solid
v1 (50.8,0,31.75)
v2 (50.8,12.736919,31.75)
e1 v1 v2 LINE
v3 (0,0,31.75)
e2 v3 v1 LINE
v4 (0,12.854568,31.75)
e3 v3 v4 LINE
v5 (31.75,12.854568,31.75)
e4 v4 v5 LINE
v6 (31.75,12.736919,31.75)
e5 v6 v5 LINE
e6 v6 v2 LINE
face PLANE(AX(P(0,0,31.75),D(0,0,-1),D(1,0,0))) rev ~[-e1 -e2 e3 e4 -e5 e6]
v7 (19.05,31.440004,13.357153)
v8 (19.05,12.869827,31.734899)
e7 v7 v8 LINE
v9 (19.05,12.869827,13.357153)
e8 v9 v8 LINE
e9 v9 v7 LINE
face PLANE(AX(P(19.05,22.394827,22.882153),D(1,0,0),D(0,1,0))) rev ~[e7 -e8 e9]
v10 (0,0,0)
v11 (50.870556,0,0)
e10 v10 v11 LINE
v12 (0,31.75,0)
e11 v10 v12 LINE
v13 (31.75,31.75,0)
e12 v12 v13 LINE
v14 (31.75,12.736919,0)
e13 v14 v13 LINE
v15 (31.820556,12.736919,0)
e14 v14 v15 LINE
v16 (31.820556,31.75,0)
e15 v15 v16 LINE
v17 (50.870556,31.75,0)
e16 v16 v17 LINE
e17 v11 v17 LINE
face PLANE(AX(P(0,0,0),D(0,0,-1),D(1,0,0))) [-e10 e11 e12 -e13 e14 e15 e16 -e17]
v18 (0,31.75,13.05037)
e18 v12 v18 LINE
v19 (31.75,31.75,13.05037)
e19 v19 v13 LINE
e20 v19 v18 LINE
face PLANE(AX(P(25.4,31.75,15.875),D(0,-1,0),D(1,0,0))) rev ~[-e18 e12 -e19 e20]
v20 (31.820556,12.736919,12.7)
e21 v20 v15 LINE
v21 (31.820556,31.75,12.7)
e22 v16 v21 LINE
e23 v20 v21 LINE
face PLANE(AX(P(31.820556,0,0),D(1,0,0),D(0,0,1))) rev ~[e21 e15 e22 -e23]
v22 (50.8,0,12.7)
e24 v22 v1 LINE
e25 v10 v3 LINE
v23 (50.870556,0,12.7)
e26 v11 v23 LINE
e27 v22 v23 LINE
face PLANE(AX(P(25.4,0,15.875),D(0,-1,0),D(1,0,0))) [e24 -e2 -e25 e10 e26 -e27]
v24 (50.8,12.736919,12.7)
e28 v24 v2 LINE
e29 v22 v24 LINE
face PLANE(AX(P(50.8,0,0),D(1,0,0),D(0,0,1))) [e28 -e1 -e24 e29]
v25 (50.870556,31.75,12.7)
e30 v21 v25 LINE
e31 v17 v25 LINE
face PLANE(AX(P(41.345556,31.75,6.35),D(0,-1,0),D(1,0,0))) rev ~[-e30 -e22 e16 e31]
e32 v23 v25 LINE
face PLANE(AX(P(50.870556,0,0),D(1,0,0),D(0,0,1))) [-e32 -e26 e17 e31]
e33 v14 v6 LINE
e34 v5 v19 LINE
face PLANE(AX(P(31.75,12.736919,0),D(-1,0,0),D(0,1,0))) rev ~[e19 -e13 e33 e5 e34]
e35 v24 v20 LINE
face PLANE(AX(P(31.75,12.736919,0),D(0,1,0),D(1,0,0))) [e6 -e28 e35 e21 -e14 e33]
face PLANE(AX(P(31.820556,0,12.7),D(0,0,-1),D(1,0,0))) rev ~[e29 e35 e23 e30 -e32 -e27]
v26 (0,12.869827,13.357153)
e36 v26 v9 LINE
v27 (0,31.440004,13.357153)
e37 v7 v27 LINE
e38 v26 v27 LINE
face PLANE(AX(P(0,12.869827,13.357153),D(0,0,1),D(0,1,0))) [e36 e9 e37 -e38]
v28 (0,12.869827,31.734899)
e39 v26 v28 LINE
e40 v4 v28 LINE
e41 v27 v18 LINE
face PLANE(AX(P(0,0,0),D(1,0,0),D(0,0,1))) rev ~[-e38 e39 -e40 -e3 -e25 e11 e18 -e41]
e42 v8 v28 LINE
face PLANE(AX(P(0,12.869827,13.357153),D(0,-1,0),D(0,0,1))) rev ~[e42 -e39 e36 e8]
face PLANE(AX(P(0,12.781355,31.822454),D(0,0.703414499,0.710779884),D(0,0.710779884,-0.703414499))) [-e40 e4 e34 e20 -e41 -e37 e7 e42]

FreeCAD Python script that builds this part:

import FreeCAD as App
import Part
import Sketcher
from FreeCAD import Vector
Q = App.Units.Quantity

doc = App.newDocument("Part")
body = doc.addObject("PartDesign::Body", "Body")

sketch1 = body.newObject("Sketcher::SketchObject", "Sketch")
sketch1.AttachmentSupport = (doc.getObject("XZ_Plane"), [""])
sketch1.MapMode = "FlatFace"
sketch1.addGeometry(Part.LineSegment(Vector(0, 32, 0), Vector(0, 0, 0)), False)
sketch1.addGeometry(Part.LineSegment(Vector(0, 0, 0), Vector(51, 0, 0)), False)
sketch1.addGeometry(Part.LineSegment(Vector(51, 0, 0), Vector(51, 32, 0)), False)
sketch1.addGeometry(Part.LineSegment(Vector(51, 32, 0), Vector(0, 32, 0)), False)
sketch1.addConstraint(Sketcher.Constraint("Coincident", 0, 2, 1, 1))
sketch1.addConstraint(Sketcher.Constraint("Coincident", 1, 2, 2, 1))
sketch1.addConstraint(Sketcher.Constraint("Coincident", 2, 2, 3, 1))
sketch1.addConstraint(Sketcher.Constraint("Coincident", 3, 2, 0, 1))
sketch1.addConstraint(Sketcher.Constraint("Vertical", 0))
sketch1.addConstraint(Sketcher.Constraint("Horizontal", 1))
sketch1.addConstraint(Sketcher.Constraint("Vertical", 2))
sketch1.addConstraint(Sketcher.Constraint("Horizontal", 3))
sketch1.addConstraint(Sketcher.Constraint("Coincident", 0, 2, -1, 1))
sketch1.addConstraint(Sketcher.Constraint("DistanceX", 1, 1, 1, 2, Q("2 in")))
sketch1.addConstraint(Sketcher.Constraint("DistanceY", 0, 2, 0, 1, Q("1.25 in")))
pad1 = body.newObject("PartDesign::Pad", "Pad")
pad1.Profile = sketch1
pad1.Length = Q("1.25 in")
pad1.Reversed = True

sketch2 = body.newObject("Sketcher::SketchObject", "Sketch001")
sketch2.AttachmentSupport = (doc.getObject("YZ_Plane"), [""])
sketch2.MapMode = "FlatFace"
sketch2.addGeometry(Part.LineSegment(Vector(13, 32, 0), Vector(13, 13, 0)), False)
sketch2.addGeometry(Part.LineSegment(Vector(13, 13, 0), Vector(32, 13, 0)), False)
sketch2.addGeometry(Part.LineSegment(Vector(32, 13, 0), Vector(32, 32, 0)), False)
sketch2.addGeometry(Part.LineSegment(Vector(32, 32, 0), Vector(13, 32, 0)), False)
sketch2.addConstraint(Sketcher.Constraint("Coincident", 0, 2, 1, 1))
sketch2.addConstraint(Sketcher.Constraint("Coincident", 1, 2, 2, 1))
sketch2.addConstraint(Sketcher.Constraint("Coincident", 2, 2, 3, 1))
sketch2.addConstraint(Sketcher.Constraint("Coincident", 3, 2, 0, 1))
sketch2.addConstraint(Sketcher.Constraint("Vertical", 0))
sketch2.addConstraint(Sketcher.Constraint("Horizontal", 1))
sketch2.addConstraint(Sketcher.Constraint("Vertical", 2))
sketch2.addConstraint(Sketcher.Constraint("Horizontal", 3))
sketch2.addConstraint(Sketcher.Constraint("Equal", 3, 0))
sketch2.addConstraint(Sketcher.Constraint("DistanceX", 1, 1, 1, 2, Q("0.75 in")))
sketch2.addConstraint(Sketcher.Constraint("DistanceX", -1, 1, 0, 2, 12.869827))
sketch2.addConstraint(Sketcher.Constraint("DistanceY", -1, 1, 0, 2, 13.357153))
pocket1 = body.newObject("PartDesign::Pocket", "Pocket")
pocket1.Profile = sketch2
pocket1.Length = Q("0.75 in")
pocket1.Reversed = True

sketch3 = body.newObject("Sketcher::SketchObject", "Sketch002")
sketch3.AttachmentSupport = (doc.getObject("XY_Plane"), [""])
sketch3.MapMode = "FlatFace"
sketch3.addGeometry(Part.LineSegment(Vector(32, 32, 0), Vector(32, 13, 0)), False)
sketch3.addGeometry(Part.LineSegment(Vector(32, 13, 0), Vector(51, 13, 0)), False)
sketch3.addGeometry(Part.LineSegment(Vector(51, 13, 0), Vector(51, 32, 0)), False)
sketch3.addGeometry(Part.LineSegment(Vector(51, 32, 0), Vector(32, 32, 0)), False)
sketch3.addConstraint(Sketcher.Constraint("Coincident", 0, 2, 1, 1))
sketch3.addConstraint(Sketcher.Constraint("Coincident", 1, 2, 2, 1))
sketch3.addConstraint(Sketcher.Constraint("Coincident", 2, 2, 3, 1))
sketch3.addConstraint(Sketcher.Constraint("Coincident", 3, 2, 0, 1))
sketch3.addConstraint(Sketcher.Constraint("Vertical", 0))
sketch3.addConstraint(Sketcher.Constraint("Horizontal", 1))
sketch3.addConstraint(Sketcher.Constraint("Vertical", 2))
sketch3.addConstraint(Sketcher.Constraint("Horizontal", 3))
sketch3.addConstraint(Sketcher.Constraint("Equal", 3, 0))
sketch3.addConstraint(Sketcher.Constraint("DistanceX", -1, 1, 1, 2, Q("2 in")))
sketch3.addConstraint(Sketcher.Constraint("DistanceX", 1, 1, 1, 2, Q("0.75 in")))
sketch3.addConstraint(Sketcher.Constraint("DistanceY", -1, 1, 0, 2, 12.736919))
pocket2 = body.newObject("PartDesign::Pocket", "Pocket001")
pocket2.Profile = sketch3
pocket2.Type = "ThroughAll"
pocket2.Reversed = True

sketch4 = body.newObject("Sketcher::SketchObject", "Sketch003")
sketch4.AttachmentSupport = (doc.getObject("XZ_Plane"), [""])
sketch4.MapMode = "FlatFace"
sketch4.addGeometry(Part.LineSegment(Vector(32, 13, 0), Vector(32, 0, 0)), False)
sketch4.addGeometry(Part.LineSegment(Vector(32, 0, 0), Vector(51, 0, 0)), False)
sketch4.addGeometry(Part.LineSegment(Vector(51, 0, 0), Vector(51, 13, 0)), False)
sketch4.addGeometry(Part.LineSegment(Vector(51, 13, 0), Vector(32, 13, 0)), False)
sketch4.addConstraint(Sketcher.Constraint("Coincident", 0, 2, 1, 1))
sketch4.addConstraint(Sketcher.Constraint("Coincident", 1, 2, 2, 1))
sketch4.addConstraint(Sketcher.Constraint("Coincident", 2, 2, 3, 1))
sketch4.addConstraint(Sketcher.Constraint("Coincident", 3, 2, 0, 1))
sketch4.addConstraint(Sketcher.Constraint("Vertical", 0))
sketch4.addConstraint(Sketcher.Constraint("Horizontal", 1))
sketch4.addConstraint(Sketcher.Constraint("Vertical", 2))
sketch4.addConstraint(Sketcher.Constraint("Horizontal", 3))
sketch4.addConstraint(Sketcher.Constraint("PointOnObject", 0, 2, -1))
sketch4.addConstraint(Sketcher.Constraint("DistanceY", 0, 2, 0, 1, Q("0.5 in")))
sketch4.addConstraint(Sketcher.Constraint("DistanceX", 1, 1, 1, 2, Q("0.75 in")))
sketch4.addConstraint(Sketcher.Constraint("DistanceX", -1, 1, 0, 2, 31.820556))
pad2 = body.newObject("PartDesign::Pad", "Pad001")
pad2.Profile = sketch4
pad2.Length = Q("1.25 in")
pad2.Reversed = True

sketch5 = body.newObject("Sketcher::SketchObject", "Sketch004")
sketch5.AttachmentSupport = (doc.getObject("YZ_Plane"), [""])
sketch5.MapMode = "FlatFace"
sketch5.addGeometry(Part.LineSegment(Vector(32, 32, 0), Vector(13, 32, 0)), False)
sketch5.addGeometry(Part.LineSegment(Vector(13, 32, 0), Vector(32, 13, 0)), False)
sketch5.addGeometry(Part.LineSegment(Vector(32, 13, 0), Vector(32, 32, 0)), False)
sketch5.addConstraint(Sketcher.Constraint("Coincident", 0, 2, 1, 1))
sketch5.addConstraint(Sketcher.Constraint("Coincident", 1, 2, 2, 1))
sketch5.addConstraint(Sketcher.Constraint("Coincident", 2, 2, 0, 1))
sketch5.addConstraint(Sketcher.Constraint("Vertical", 2))
sketch5.addConstraint(Sketcher.Constraint("DistanceY", 2, 1, 2, 2, Q("0.75 in")))
sketch5.addConstraint(Sketcher.Constraint("Distance", 0, Q("0.75 in")))
sketch5.addConstraint(Sketcher.Constraint("Distance", 1, 26.800092))
sketch5.addConstraint(Sketcher.Constraint("DistanceX", -1, 1, 1, 2, 31.830321))
sketch5.addConstraint(Sketcher.Constraint("DistanceY", -1, 1, 1, 2, 12.970881))
pocket3 = body.newObject("PartDesign::Pocket", "Pocket002")
pocket3.Profile = sketch5
pocket3.Type = "ThroughAll"
pocket3.Reversed = True

doc.recompute()
